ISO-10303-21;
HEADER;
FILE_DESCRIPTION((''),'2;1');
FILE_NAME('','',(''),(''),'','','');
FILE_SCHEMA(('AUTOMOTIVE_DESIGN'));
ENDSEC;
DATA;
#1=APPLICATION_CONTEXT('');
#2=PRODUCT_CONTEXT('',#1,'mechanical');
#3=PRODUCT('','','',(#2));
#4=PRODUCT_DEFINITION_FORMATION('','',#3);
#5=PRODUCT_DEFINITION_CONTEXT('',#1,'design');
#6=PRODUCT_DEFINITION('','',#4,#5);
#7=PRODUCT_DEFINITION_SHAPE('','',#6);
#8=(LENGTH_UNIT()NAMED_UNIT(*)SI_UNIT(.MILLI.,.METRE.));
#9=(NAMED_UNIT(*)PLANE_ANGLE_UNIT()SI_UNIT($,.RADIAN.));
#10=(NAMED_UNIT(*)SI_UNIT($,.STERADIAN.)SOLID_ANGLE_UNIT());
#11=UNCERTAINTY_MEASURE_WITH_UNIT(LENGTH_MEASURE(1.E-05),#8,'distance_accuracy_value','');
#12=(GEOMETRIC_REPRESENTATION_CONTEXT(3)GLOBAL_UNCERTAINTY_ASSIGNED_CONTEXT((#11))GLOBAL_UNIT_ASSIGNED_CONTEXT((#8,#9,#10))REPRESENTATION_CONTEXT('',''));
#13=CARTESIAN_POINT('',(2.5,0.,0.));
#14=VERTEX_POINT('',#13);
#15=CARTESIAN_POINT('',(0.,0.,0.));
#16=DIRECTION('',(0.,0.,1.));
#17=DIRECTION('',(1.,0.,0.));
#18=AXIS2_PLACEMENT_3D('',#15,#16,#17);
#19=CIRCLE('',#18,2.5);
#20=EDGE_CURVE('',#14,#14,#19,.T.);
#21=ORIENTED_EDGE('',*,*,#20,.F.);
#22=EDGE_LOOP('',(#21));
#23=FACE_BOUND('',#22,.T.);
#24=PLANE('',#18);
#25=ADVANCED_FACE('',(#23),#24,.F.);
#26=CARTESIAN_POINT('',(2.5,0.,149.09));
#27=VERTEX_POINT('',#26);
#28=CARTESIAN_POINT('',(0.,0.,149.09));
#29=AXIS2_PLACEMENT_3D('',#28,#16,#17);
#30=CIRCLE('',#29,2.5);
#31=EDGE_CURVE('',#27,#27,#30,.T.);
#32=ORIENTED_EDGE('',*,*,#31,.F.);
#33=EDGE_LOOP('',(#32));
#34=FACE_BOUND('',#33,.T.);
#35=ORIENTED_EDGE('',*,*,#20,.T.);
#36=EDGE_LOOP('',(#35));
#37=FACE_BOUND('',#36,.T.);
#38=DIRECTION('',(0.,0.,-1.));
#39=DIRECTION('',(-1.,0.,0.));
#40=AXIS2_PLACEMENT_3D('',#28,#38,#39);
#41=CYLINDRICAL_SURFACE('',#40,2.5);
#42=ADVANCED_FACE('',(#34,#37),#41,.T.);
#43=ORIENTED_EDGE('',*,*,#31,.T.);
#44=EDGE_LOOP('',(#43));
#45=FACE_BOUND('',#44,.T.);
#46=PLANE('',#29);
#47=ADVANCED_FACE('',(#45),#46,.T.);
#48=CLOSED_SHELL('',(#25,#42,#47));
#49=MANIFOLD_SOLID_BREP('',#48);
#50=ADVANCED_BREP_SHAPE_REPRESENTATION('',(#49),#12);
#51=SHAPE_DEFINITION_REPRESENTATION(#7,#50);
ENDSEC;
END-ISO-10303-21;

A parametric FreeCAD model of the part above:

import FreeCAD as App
import Part
import Sketcher

V = App.Vector
Q = App.Units.Quantity

doc = App.newDocument("Part")
body = doc.addObject("PartDesign::Body", "Body")

# Sketch on XY plane
sketch1 = body.newObject("Sketcher::SketchObject", "Sketch")
sketch1.AttachmentSupport = (doc.getObject("XY_Plane"), [""])
sketch1.MapMode = "FlatFace"
sketch1.addGeometry(Part.Circle(V(0, 0, 0), V(0, 0, 1), 2.5), False)
sketch1.addConstraint(Sketcher.Constraint("Coincident", 0, 3, -1, 1))
sketch1.addConstraint(Sketcher.Constraint("Diameter", 0, Q("5 mm")))
pad1 = body.newObject("PartDesign::Pad", "Pad")
pad1.Profile = sketch1
pad1.Length = 149.09

doc.recompute()
